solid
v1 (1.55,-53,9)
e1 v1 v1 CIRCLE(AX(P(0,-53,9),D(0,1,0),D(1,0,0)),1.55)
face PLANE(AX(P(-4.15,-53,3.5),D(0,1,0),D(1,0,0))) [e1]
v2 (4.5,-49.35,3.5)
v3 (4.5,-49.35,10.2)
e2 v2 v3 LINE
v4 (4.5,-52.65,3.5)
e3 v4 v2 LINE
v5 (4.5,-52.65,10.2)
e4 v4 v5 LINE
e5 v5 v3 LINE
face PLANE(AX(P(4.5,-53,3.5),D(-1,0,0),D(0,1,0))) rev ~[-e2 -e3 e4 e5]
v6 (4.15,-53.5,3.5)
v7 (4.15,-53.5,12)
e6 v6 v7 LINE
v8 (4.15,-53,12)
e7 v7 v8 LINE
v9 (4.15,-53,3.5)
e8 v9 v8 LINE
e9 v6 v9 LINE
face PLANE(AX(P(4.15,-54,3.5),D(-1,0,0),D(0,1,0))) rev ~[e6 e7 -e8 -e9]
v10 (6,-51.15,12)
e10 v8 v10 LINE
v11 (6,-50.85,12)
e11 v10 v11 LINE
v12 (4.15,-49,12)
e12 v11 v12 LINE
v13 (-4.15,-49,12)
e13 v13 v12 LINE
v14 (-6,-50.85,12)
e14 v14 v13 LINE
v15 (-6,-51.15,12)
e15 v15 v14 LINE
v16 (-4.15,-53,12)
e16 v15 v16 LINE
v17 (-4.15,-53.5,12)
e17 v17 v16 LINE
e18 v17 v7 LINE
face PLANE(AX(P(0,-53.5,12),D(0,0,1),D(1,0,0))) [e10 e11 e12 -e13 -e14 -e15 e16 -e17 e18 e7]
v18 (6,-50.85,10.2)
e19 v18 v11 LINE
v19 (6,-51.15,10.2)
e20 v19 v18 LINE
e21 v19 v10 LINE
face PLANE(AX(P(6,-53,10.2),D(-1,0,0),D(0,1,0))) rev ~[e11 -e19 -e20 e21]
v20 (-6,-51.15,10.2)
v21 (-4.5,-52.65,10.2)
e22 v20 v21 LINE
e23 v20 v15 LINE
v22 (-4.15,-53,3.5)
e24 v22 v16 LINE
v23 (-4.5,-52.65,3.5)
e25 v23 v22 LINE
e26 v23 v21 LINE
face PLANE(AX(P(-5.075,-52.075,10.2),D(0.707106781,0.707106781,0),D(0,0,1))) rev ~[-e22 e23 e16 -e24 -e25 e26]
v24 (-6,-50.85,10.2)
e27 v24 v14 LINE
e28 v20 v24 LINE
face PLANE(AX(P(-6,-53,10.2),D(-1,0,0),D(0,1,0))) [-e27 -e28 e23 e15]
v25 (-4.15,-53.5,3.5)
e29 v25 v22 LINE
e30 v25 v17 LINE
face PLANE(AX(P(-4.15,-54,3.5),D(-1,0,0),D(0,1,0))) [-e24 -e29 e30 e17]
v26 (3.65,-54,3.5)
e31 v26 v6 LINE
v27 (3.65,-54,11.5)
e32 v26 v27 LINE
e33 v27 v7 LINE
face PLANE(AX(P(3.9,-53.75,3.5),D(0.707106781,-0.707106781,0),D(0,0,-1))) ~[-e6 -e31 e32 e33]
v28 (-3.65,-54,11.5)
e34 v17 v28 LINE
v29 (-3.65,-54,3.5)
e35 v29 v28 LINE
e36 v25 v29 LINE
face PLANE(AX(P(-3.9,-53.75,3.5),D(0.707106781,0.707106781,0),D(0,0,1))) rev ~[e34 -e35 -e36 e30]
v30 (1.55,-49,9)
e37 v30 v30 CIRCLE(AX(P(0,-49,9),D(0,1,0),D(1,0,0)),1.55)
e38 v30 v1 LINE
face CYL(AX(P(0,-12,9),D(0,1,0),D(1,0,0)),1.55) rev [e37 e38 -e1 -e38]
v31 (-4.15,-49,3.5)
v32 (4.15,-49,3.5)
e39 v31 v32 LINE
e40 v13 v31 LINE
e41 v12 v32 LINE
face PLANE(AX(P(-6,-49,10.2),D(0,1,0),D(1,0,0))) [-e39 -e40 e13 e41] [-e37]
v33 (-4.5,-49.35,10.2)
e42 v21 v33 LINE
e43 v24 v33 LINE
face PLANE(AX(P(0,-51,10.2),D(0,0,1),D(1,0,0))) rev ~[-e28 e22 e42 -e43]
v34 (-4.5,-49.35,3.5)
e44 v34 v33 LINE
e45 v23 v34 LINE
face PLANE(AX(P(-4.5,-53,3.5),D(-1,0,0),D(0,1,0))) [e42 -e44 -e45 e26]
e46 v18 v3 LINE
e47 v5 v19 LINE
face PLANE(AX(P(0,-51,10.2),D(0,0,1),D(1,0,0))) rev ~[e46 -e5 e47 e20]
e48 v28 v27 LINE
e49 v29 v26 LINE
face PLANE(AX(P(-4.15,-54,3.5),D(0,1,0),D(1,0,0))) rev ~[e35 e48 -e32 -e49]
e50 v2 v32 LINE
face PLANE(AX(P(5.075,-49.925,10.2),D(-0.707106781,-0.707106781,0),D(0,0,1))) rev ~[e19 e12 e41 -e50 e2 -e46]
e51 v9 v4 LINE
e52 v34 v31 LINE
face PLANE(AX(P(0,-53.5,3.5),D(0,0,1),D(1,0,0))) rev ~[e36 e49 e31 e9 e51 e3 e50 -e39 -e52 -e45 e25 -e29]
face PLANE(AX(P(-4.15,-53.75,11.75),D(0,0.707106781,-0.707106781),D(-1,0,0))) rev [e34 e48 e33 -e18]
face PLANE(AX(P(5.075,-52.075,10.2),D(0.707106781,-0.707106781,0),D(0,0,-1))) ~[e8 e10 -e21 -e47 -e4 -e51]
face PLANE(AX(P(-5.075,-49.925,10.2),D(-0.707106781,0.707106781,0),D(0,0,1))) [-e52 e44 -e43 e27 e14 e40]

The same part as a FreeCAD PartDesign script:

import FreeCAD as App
import Part
import Sketcher

V = App.Vector
Q = App.Units.Quantity


def edges_at(feature, points):
    """Names of the edges that pass closest to the given points."""
    edges = feature.Shape.Edges
    near = lambda p: min(range(len(edges)), key=lambda i: edges[i].distToShape(Part.Vertex(*p))[0])
    return sorted({f"Edge{near(p) + 1}" for p in points})


def add_polygon(sketch, points):
    """Adds a closed chain of lines whose ends are joined by coincident constraints."""
    first, n = sketch.GeometryCount, len(points)
    for a, b in zip(points, points[1:] + points[:1]):
        sketch.addGeometry(Part.LineSegment(App.Vector(*a, 0), App.Vector(*b, 0)), False)
    for i in range(n):
        sketch.addConstraint(Sketcher.Constraint("Coincident", first + i, 2, first + (i + 1) % n, 1))

doc = App.newDocument("Part")
params = doc.addObject("Spreadsheet::Sheet", "Params")
for row, (alias, value) in enumerate([
    ("sketch1_height", "1 mm"),
    ("sketch1_width", "8.3 mm"),
    ("pad1_length", "8.5 mm"),
    ("chamfer_size", "0.5 mm"),
    ("sketch2_diameter", "3.1 mm"),
    ("pad2_length", "67 mm"),
    ("sketch3_width", "12 mm"),
    ("sketch3_height", "4 mm"),
    ("pad3_length", "1.8 mm"),
    ("chamfer2_size", "1.85 mm"),
    ("sketch4_width", "9 mm"),
    ("sketch4_height", "4 mm"),
    ("pad4_length", "7 mm"),
    ("chamfer3_size", "0.35 mm"),
], start=1):
    params.set(f"A{row}", alias)
    params.set(f"B{row}", "=" + value)
    params.setAlias(f"B{row}", alias)

body = doc.addObject("PartDesign::Body", "Body")

sketch1 = body.newObject("Sketcher::SketchObject", "Sketch")
sketch1.AttachmentSupport = (doc.getObject("XY_Plane"), [""])
sketch1.MapMode = "FlatFace"
sketch1.AttachmentOffset = App.Placement(V(0, 0, 3.5), App.Rotation())
add_polygon(sketch1, [(-4.2, -41), (-4.2, -42), (4.2, -42), (4.2, -41)])
sketch1.addConstraint(Sketcher.Constraint("Vertical", 0))
sketch1.addConstraint(Sketcher.Constraint("Horizontal", 1))
sketch1.addConstraint(Sketcher.Constraint("Vertical", 2))
sketch1.addConstraint(Sketcher.Constraint("Horizontal", 3))
sketch1.addConstraint(Sketcher.Constraint("DistanceY", 0, 2, 0, 1, Q("1 mm")))
sketch1.addConstraint(Sketcher.Constraint("DistanceX", 1, 1, 1, 2, Q("8.3 mm")))
sketch1.addConstraint(Sketcher.Constraint("DistanceY", 0, 2, -1, 1, Q("42 mm")))
sketch1.addConstraint(Sketcher.Constraint("DistanceX", 0, 2, -1, 1, Q("4.15 mm")))
sketch1.setExpression("Constraints[8]", "Params.sketch1_height")
sketch1.setExpression("Constraints[9]", "Params.sketch1_width")
pad1 = body.newObject("PartDesign::Pad", "Pad")
pad1.Profile = sketch1
pad1.setExpression("Length", "Params.pad1_length")
doc.recompute()

chamfer = body.newObject("PartDesign::Chamfer", "Chamfer")
chamfer.Base = (pad1, edges_at(pad1, [(-4.15, -42, 7.75), (4.15, -42, 7.75), (0, -42, 12)]))
chamfer.setExpression("Size", "Params.chamfer_size")
body2 = doc.addObject("PartDesign::Body", "Body001")

sketch2 = body2.newObject("Sketcher::SketchObject", "Sketch001")
sketch2.AttachmentSupport = (doc.getObject("XZ_Plane001"), [""])
sketch2.MapMode = "FlatFace"
sketch2.addGeometry(Part.Circle(V(0, 9, 0), V(0, 0, 1), 1.6), False)
sketch2.addConstraint(Sketcher.Constraint("PointOnObject", 0, 3, -2))
sketch2.addConstraint(Sketcher.Constraint("Diameter", 0, Q("3.1 mm")))
sketch2.addConstraint(Sketcher.Constraint("DistanceY", -1, 1, 0, 3, Q("9 mm")))
sketch2.setExpression("Constraints[1]", "Params.sketch2_diameter")
pad2 = body2.newObject("PartDesign::Pad", "Pad001")
pad2.Profile = sketch2
pad2.setExpression("Length", "Params.pad2_length")
body3 = doc.addObject("PartDesign::Body", "Body002")

sketch3 = body3.newObject("Sketcher::SketchObject", "Sketch002")
sketch3.AttachmentSupport = (doc.getObject("XY_Plane002"), [""])
sketch3.MapMode = "FlatFace"
sketch3.AttachmentOffset = App.Placement(V(0, 0, 10.2), App.Rotation())
add_polygon(sketch3, [(-6, -37), (-6, -41), (6, -41), (6, -37)])
sketch3.addConstraint(Sketcher.Constraint("Vertical", 0))
sketch3.addConstraint(Sketcher.Constraint("Horizontal", 1))
sketch3.addConstraint(Sketcher.Constraint("Vertical", 2))
sketch3.addConstraint(Sketcher.Constraint("Horizontal", 3))
sketch3.addConstraint(Sketcher.Constraint("DistanceX", 1, 1, 1, 2, Q("12 mm")))
sketch3.addConstraint(Sketcher.Constraint("DistanceY", 0, 2, 0, 1, Q("4 mm")))
sketch3.addConstraint(Sketcher.Constraint("DistanceX", 0, 2, -1, 1, Q("6 mm")))
sketch3.addConstraint(Sketcher.Constraint("DistanceY", 0, 2, -1, 1, Q("41 mm")))
sketch3.setExpression("Constraints[8]", "Params.sketch3_width")
sketch3.setExpression("Constraints[9]", "Params.sketch3_height")
pad3 = body3.newObject("PartDesign::Pad", "Pad002")
pad3.Profile = sketch3
pad3.setExpression("Length", "Params.pad3_length")
doc.recompute()

chamfer2 = body3.newObject("PartDesign::Chamfer", "Chamfer001")
chamfer2.Base = (pad3, edges_at(pad3, [
    (-6, -41, 11.1),
    (-6, -37, 11.1),
    (6, -41, 11.1),
    (6, -37, 11.1),
]))
chamfer2.setExpression("Size", "Params.chamfer2_size")
body4 = doc.addObject("PartDesign::Body", "Body003")

sketch4 = body4.newObject("Sketcher::SketchObject", "Sketch003")
sketch4.AttachmentSupport = (doc.getObject("XY_Plane003"), [""])
sketch4.MapMode = "FlatFace"
sketch4.AttachmentOffset = App.Placement(V(0, 0, 3.5), App.Rotation())
add_polygon(sketch4, [(-4.5, -37), (-4.5, -41), (4.5, -41), (4.5, -37)])
sketch4.addConstraint(Sketcher.Constraint("Vertical", 0))
sketch4.addConstraint(Sketcher.Constraint("Horizontal", 1))
sketch4.addConstraint(Sketcher.Constraint("Vertical", 2))
sketch4.addConstraint(Sketcher.Constraint("Horizontal", 3))
sketch4.addConstraint(Sketcher.Constraint("DistanceX", 1, 1, 1, 2, Q("9 mm")))
sketch4.addConstraint(Sketcher.Constraint("DistanceY", 0, 2, 0, 1, Q("4 mm")))
sketch4.addConstraint(Sketcher.Constraint("DistanceY", 0, 2, -1, 1, Q("41 mm")))
sketch4.addConstraint(Sketcher.Constraint("DistanceX", 0, 2, -1, 1, Q("4.5 mm")))
sketch4.setExpression("Constraints[8]", "Params.sketch4_width")
sketch4.setExpression("Constraints[9]", "Params.sketch4_height")
pad4 = body4.newObject("PartDesign::Pad", "Pad003")
pad4.Profile = sketch4
pad4.setExpression("Length", "Params.pad4_length")
doc.recompute()

chamfer3 = body4.newObject("PartDesign::Chamfer", "Chamfer002")
chamfer3.Base = (pad4, edges_at(pad4, [
    (-4.5, -41, 7),
    (-4.5, -37, 7),
    (4.5, -41, 7),
    (4.5, -37, 7),
]))
chamfer3.setExpression("Size", "Params.chamfer3_size")
doc.recompute()

boolean = body4.newObject("PartDesign::Boolean", "Boolean")
boolean.Type = "Fuse"
boolean.addObjects([body3])
doc.recompute()

boolean2 = body4.newObject("PartDesign::Boolean", "Boolean001")
boolean2.Type = "Cut"
boolean2.addObjects([body2])
doc.recompute()

boolean3 = body4.newObject("PartDesign::Boolean", "Boolean002")
boolean3.Type = "Fuse"
boolean3.addObjects([body])
body5 = doc.addObject("PartDesign::Body", "Body004")
doc.recompute()

body4.Placement = App.Placement(V(0, -12, 0), App.Rotation(V(0, 0, 1), 0))
boolean4 = body5.newObject("PartDesign::Boolean", "Boolean003")
boolean4.Type = "Fuse"
boolean4.addObjects([body4])

doc.recompute()
